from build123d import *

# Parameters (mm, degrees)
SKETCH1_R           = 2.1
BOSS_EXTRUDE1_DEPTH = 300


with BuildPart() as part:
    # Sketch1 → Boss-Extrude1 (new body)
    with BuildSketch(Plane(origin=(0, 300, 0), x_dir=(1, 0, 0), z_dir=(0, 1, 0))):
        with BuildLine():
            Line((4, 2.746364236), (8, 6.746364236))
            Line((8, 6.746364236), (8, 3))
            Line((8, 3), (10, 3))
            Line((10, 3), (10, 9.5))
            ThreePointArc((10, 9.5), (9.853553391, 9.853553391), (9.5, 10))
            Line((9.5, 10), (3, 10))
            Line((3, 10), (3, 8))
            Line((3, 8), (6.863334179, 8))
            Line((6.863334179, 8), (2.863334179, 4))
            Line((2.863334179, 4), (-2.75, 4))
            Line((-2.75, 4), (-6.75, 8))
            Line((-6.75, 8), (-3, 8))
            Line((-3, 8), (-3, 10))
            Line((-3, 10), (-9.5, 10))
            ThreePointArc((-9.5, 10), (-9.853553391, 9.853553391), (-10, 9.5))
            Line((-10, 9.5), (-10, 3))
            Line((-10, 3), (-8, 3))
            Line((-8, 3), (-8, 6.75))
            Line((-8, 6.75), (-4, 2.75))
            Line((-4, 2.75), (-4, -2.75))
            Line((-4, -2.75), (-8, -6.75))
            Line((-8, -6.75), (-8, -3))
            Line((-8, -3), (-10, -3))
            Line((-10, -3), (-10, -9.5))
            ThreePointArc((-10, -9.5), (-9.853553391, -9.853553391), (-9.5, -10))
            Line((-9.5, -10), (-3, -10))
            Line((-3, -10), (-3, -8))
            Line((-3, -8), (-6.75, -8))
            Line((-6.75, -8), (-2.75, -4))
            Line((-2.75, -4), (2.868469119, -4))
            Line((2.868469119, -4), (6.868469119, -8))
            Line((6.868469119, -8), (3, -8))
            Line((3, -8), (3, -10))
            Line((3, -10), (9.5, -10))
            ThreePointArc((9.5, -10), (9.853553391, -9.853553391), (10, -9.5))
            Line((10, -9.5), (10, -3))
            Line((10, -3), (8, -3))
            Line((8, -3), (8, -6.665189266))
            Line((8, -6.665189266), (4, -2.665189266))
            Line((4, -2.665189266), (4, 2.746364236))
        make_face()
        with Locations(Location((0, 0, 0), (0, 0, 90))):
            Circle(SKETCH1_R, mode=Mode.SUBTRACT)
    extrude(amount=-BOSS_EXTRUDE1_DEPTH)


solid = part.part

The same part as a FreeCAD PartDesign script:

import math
import FreeCAD as App
import Part
import Sketcher

doc = App.newDocument("Part")
body = doc.addObject("PartDesign::Body", "Body")

sketch1 = doc.addObject("Sketcher::SketchObject", "Sketch")
body.addObject(sketch1)
sketch1.AttachmentSupport = (doc.XZ_Plane, [""])
sketch1.MapMode = "FlatFace"
sketch1.AttachmentOffset = App.Placement(App.Vector(0, 0, -300), App.Rotation())
sketch1.addGeometry([
    Part.LineSegment(App.Vector(4, -2.75, 0), App.Vector(8, -6.75, 0)),
    Part.LineSegment(App.Vector(8, -6.75, 0), App.Vector(8, -3, 0)),
    Part.LineSegment(App.Vector(8, -3, 0), App.Vector(10, -3, 0)),
    Part.LineSegment(App.Vector(10, -3, 0), App.Vector(10, -9.5, 0)),
    Part.ArcOfCircle(Part.Circle(App.Vector(9.5, -9.5, 0), App.Vector(0, 0, 1), 0.5), math.radians(-90), math.radians(0)),
    Part.LineSegment(App.Vector(9.5, -10, 0), App.Vector(3, -10, 0)),
    Part.LineSegment(App.Vector(3, -10, 0), App.Vector(3, -8, 0)),
    Part.LineSegment(App.Vector(3, -8, 0), App.Vector(6.86, -8, 0)),
    Part.LineSegment(App.Vector(6.86, -8, 0), App.Vector(2.86, -4, 0)),
    Part.LineSegment(App.Vector(2.86, -4, 0), App.Vector(-2.75, -4, 0)),
    Part.LineSegment(App.Vector(-2.75, -4, 0), App.Vector(-6.75, -8, 0)),
    Part.LineSegment(App.Vector(-6.75, -8, 0), App.Vector(-3, -8, 0)),
    Part.LineSegment(App.Vector(-3, -8, 0), App.Vector(-3, -10, 0)),
    Part.LineSegment(App.Vector(-3, -10, 0), App.Vector(-9.5, -10, 0)),
    Part.ArcOfCircle(Part.Circle(App.Vector(-9.5, -9.5, 0), App.Vector(0, 0, 1), 0.5), math.radians(180), math.radians(270)),
    Part.LineSegment(App.Vector(-10, -9.5, 0), App.Vector(-10, -3, 0)),
    Part.LineSegment(App.Vector(-10, -3, 0), App.Vector(-8, -3, 0)),
    Part.LineSegment(App.Vector(-8, -3, 0), App.Vector(-8, -6.75, 0)),
    Part.LineSegment(App.Vector(-8, -6.75, 0), App.Vector(-4, -2.75, 0)),
    Part.LineSegment(App.Vector(-4, -2.75, 0), App.Vector(-4, 2.75, 0)),
    Part.LineSegment(App.Vector(-4, 2.75, 0), App.Vector(-8, 6.75, 0)),
    Part.LineSegment(App.Vector(-8, 6.75, 0), App.Vector(-8, 3, 0)),
    Part.LineSegment(App.Vector(-8, 3, 0), App.Vector(-10, 3, 0)),
    Part.LineSegment(App.Vector(-10, 3, 0), App.Vector(-10, 9.5, 0)),
    Part.ArcOfCircle(Part.Circle(App.Vector(-9.5, 9.5, 0), App.Vector(0, 0, 1), 0.5), math.radians(90), math.radians(180)),
    Part.LineSegment(App.Vector(-9.5, 10, 0), App.Vector(-3, 10, 0)),
    Part.LineSegment(App.Vector(-3, 10, 0), App.Vector(-3, 8, 0)),
    Part.LineSegment(App.Vector(-3, 8, 0), App.Vector(-6.75, 8, 0)),
    Part.LineSegment(App.Vector(-6.75, 8, 0), App.Vector(-2.75, 4, 0)),
    Part.LineSegment(App.Vector(-2.75, 4, 0), App.Vector(2.87, 4, 0)),
    Part.LineSegment(App.Vector(2.87, 4, 0), App.Vector(6.87, 8, 0)),
    Part.LineSegment(App.Vector(6.87, 8, 0), App.Vector(3, 8, 0)),
    Part.LineSegment(App.Vector(3, 8, 0), App.Vector(3, 10, 0)),
    Part.LineSegment(App.Vector(3, 10, 0), App.Vector(9.5, 10, 0)),
    Part.ArcOfCircle(Part.Circle(App.Vector(9.5, 9.5, 0), App.Vector(0, 0, 1), 0.5), math.radians(0), math.radians(90)),
    Part.LineSegment(App.Vector(10, 9.5, 0), App.Vector(10, 3, 0)),
    Part.LineSegment(App.Vector(10, 3, 0), App.Vector(8, 3, 0)),
    Part.LineSegment(App.Vector(8, 3, 0), App.Vector(8, 6.67, 0)),
    Part.LineSegment(App.Vector(8, 6.67, 0), App.Vector(4, 2.67, 0)),
    Part.LineSegment(App.Vector(4, 2.67, 0), App.Vector(4, -2.75, 0)),
    Part.Circle(App.Vector(0, 0, 0), App.Vector(0, 0, 1), 2.1),
], False)
sketch1.addConstraint([
    Sketcher.Constraint("Coincident", 0, 2, 1, 1),
    Sketcher.Constraint("Coincident", 1, 2, 2, 1),
    Sketcher.Constraint("Coincident", 2, 2, 3, 1),
    Sketcher.Constraint("Tangent", 3, 2, 4, 2),
    Sketcher.Constraint("Tangent", 4, 1, 5, 1),
    Sketcher.Constraint("Coincident", 5, 2, 6, 1),
    Sketcher.Constraint("Coincident", 6, 2, 7, 1),
    Sketcher.Constraint("Coincident", 7, 2, 8, 1),
    Sketcher.Constraint("Coincident", 8, 2, 9, 1),
    Sketcher.Constraint("Coincident", 9, 2, 10, 1),
    Sketcher.Constraint("Coincident", 10, 2, 11, 1),
    Sketcher.Constraint("Coincident", 11, 2, 12, 1),
    Sketcher.Constraint("Coincident", 12, 2, 13, 1),
    Sketcher.Constraint("Tangent", 13, 2, 14, 2),
    Sketcher.Constraint("Tangent", 14, 1, 15, 1),
    Sketcher.Constraint("Coincident", 15, 2, 16, 1),
    Sketcher.Constraint("Coincident", 16, 2, 17, 1),
    Sketcher.Constraint("Coincident", 17, 2, 18, 1),
    Sketcher.Constraint("Coincident", 18, 2, 19, 1),
    Sketcher.Constraint("Coincident", 19, 2, 20, 1),
    Sketcher.Constraint("Coincident", 20, 2, 21, 1),
    Sketcher.Constraint("Coincident", 21, 2, 22, 1),
    Sketcher.Constraint("Coincident", 22, 2, 23, 1),
    Sketcher.Constraint("Tangent", 23, 2, 24, 2),
    Sketcher.Constraint("Tangent", 24, 1, 25, 1),
    Sketcher.Constraint("Coincident", 25, 2, 26, 1),
    Sketcher.Constraint("Coincident", 26, 2, 27, 1),
    Sketcher.Constraint("Coincident", 27, 2, 28, 1),
    Sketcher.Constraint("Coincident", 28, 2, 29, 1),
    Sketcher.Constraint("Coincident", 29, 2, 30, 1),
    Sketcher.Constraint("Coincident", 30, 2, 31, 1),
    Sketcher.Constraint("Coincident", 31, 2, 32, 1),
    Sketcher.Constraint("Coincident", 32, 2, 33, 1),
    Sketcher.Constraint("Tangent", 33, 2, 34, 2),
    Sketcher.Constraint("Tangent", 34, 1, 35, 1),
    Sketcher.Constraint("Coincident", 35, 2, 36, 1),
    Sketcher.Constraint("Coincident", 36, 2, 37, 1),
    Sketcher.Constraint("Coincident", 37, 2, 38, 1),
    Sketcher.Constraint("Coincident", 38, 2, 39, 1),
    Sketcher.Constraint("Coincident", 39, 2, 0, 1),
    Sketcher.Constraint("Vertical", 1),
    Sketcher.Constraint("Horizontal", 2),
    Sketcher.Constraint("Vertical", 3),
    Sketcher.Constraint("Horizontal", 5),
    Sketcher.Constraint("Vertical", 6),
    Sketcher.Constraint("Horizontal", 7),
    Sketcher.Constraint("Horizontal", 9),
    Sketcher.Constraint("Horizontal", 11),
    Sketcher.Constraint("Vertical", 12),
    Sketcher.Constraint("Horizontal", 13),
    Sketcher.Constraint("Vertical", 15),
    Sketcher.Constraint("Horizontal", 16),
    Sketcher.Constraint("Vertical", 17),
    Sketcher.Constraint("Vertical", 19),
    Sketcher.Constraint("Vertical", 21),
    Sketcher.Constraint("Horizontal", 22),
    Sketcher.Constraint("Vertical", 23),
    Sketcher.Constraint("Horizontal", 25),
    Sketcher.Constraint("Vertical", 26),
    Sketcher.Constraint("Horizontal", 27),
    Sketcher.Constraint("Horizontal", 29),
    Sketcher.Constraint("Horizontal", 31),
    Sketcher.Constraint("Vertical", 32),
    Sketcher.Constraint("Horizontal", 33),
    Sketcher.Constraint("Vertical", 35),
    Sketcher.Constraint("Horizontal", 36),
    Sketcher.Constraint("Vertical", 37),
    Sketcher.Constraint("Vertical", 39),
    Sketcher.Constraint("Coincident", 40, 3, -1, 1),
    Sketcher.Constraint("Equal", 4, 14),
    Sketcher.Constraint("Equal", 14, 24),
    Sketcher.Constraint("Equal", 24, 34),
    Sketcher.Constraint("Symmetric", 4, 3, 24, 3, -1, 1),
    Sketcher.Constraint("Symmetric", 14, 3, 34, 3, -1, 1),
    Sketcher.Constraint("Symmetric", 1, 2, 21, 2, -1, 1),
    Sketcher.Constraint("Symmetric", 6, 2, 26, 2, -1, 1),
    Sketcher.Constraint("Symmetric", 11, 2, 31, 2, -1, 1),
    Sketcher.Constraint("Symmetric", 16, 2, 36, 2, -1, 1),
    Sketcher.Constraint("Symmetric", 4, 3, 14, 3, -2),
    Sketcher.Constraint("Symmetric", 6, 2, 11, 2, -2),
    Sketcher.Constraint("Symmetric", 1, 2, 16, 2, -2),
    Sketcher.Constraint("Symmetric", 9, 2, 28, 2, -1),
    Sketcher.Constraint("Parallel", 0, 8),
    Sketcher.Constraint("Perpendicular", 8, 10),
    Sketcher.Constraint("Parallel", 10, 18),
    Sketcher.Constraint("Perpendicular", 18, 20),
    Sketcher.Constraint("Parallel", 20, 28),
    Sketcher.Constraint("Perpendicular", 28, 30),
    Sketcher.Constraint("Parallel", 30, 38),
    Sketcher.Constraint("Vertical", 10, 2, 27, 2),
    Sketcher.Constraint("Equal", 33, 3),
    Sketcher.Constraint("Equal", 36, 6),
    Sketcher.Constraint("Equal", 27, 17),
    Sketcher.Constraint("Equal", 17, 21),
    Sketcher.Constraint("Equal", 0, 8),
    Sketcher.Constraint("Equal", 10, 18),
    Sketcher.Constraint("Diameter", 40, 4.2),
    Sketcher.Constraint("Radius", 4, 0.5),
    Sketcher.Constraint("DistanceX", 2, 1, 2, 2, 2.0),
    Sketcher.Constraint("DistanceX", 5, 2, 5, 1, 6.5),
    Sketcher.Constraint("DistanceY", 19, 1, 19, 2, 5.5),
    Sketcher.Constraint("DistanceX", -1, 1, 0, 2, 8.0),
    Sketcher.Constraint("DistanceY", 1, 2, -1, 1, 3.0),
    Sketcher.Constraint("DistanceY", 8, 2, -1, 1, 4.0),
    Sketcher.Constraint("DistanceX", 29, 1, 29, 2, 5.618469),
    Sketcher.Constraint("DistanceY", 37, 1, 37, 2, 3.665189),
    Sketcher.Constraint("DistanceX", 7, 1, 7, 2, 3.863334),
    Sketcher.Constraint("DistanceY", 1, 1, 1, 2, 3.746364),
])
pad1 = doc.addObject("PartDesign::Pad", "Pad")
body.addObject(pad1)
pad1.Profile = sketch1
pad1.Length = 300

doc.recompute()
